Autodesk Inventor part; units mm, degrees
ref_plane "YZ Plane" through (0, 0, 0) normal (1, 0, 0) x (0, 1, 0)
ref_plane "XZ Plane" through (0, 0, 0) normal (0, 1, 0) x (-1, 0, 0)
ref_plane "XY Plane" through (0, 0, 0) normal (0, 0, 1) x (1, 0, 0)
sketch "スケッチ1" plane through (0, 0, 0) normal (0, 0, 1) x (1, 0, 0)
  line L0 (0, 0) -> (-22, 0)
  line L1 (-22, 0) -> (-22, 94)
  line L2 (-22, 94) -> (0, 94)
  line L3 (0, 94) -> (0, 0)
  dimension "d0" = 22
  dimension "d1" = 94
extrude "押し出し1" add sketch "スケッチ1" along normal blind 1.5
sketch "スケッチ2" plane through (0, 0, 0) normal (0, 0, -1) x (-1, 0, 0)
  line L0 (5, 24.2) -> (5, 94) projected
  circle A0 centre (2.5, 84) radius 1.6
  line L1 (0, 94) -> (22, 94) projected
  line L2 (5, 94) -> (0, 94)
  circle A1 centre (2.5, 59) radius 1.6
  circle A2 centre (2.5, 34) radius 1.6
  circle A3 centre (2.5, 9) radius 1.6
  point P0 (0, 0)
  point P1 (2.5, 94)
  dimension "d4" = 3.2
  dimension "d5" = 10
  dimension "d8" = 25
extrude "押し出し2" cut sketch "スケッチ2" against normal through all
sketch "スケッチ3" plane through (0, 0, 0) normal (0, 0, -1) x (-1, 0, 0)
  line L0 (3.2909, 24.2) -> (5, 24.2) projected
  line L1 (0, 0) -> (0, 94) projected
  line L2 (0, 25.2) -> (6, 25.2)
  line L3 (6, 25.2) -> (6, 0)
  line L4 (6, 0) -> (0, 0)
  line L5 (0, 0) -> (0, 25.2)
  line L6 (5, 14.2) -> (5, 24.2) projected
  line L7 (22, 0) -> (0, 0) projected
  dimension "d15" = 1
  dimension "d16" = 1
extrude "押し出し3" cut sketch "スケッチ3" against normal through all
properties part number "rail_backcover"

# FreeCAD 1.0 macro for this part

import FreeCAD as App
import Part
import Sketcher

V = App.Vector
Q = App.Units.Quantity

doc = App.newDocument("Part")
body = doc.addObject("PartDesign::Body", "Body")

sketch1 = body.newObject("Sketcher::SketchObject", "Sketch")
sketch1.AttachmentSupport = (doc.getObject("XY_Plane"), [""])
sketch1.MapMode = "FlatFace"
sketch1.addGeometry(Part.LineSegment(V(-22, 0, 0), V(0, 0, 0)), False)
sketch1.addGeometry(Part.LineSegment(V(0, 0, 0), V(0, 94, 0)), False)
sketch1.addGeometry(Part.LineSegment(V(0, 94, 0), V(-22, 94, 0)), False)
sketch1.addGeometry(Part.LineSegment(V(-22, 94, 0), V(-22, 0, 0)), False)
sketch1.addConstraint(Sketcher.Constraint("Coincident", 0, 2, 1, 1))
sketch1.addConstraint(Sketcher.Constraint("Coincident", 1, 2, 2, 1))
sketch1.addConstraint(Sketcher.Constraint("Coincident", 2, 2, 3, 1))
sketch1.addConstraint(Sketcher.Constraint("Coincident", 3, 2, 0, 1))
sketch1.addConstraint(Sketcher.Constraint("Horizontal", 0))
sketch1.addConstraint(Sketcher.Constraint("Vertical", 1))
sketch1.addConstraint(Sketcher.Constraint("Horizontal", 2))
sketch1.addConstraint(Sketcher.Constraint("Vertical", 3))
sketch1.addConstraint(Sketcher.Constraint("Coincident", 0, 2, -1, 1))
sketch1.addConstraint(Sketcher.Constraint("DistanceX", 0, 1, 0, 2, Q("22 mm")))
sketch1.addConstraint(Sketcher.Constraint("DistanceY", 1, 1, 1, 2, Q("94 mm")))
pad1 = body.newObject("PartDesign::Pad", "Pad")
pad1.Profile = sketch1
pad1.Length = 1.5

sketch2 = body.newObject("Sketcher::SketchObject", "Sketch001")
sketch2.AttachmentSupport = (doc.getObject("XY_Plane"), [""])
sketch2.MapMode = "FlatFace"
sketch2.addGeometry(Part.Circle(V(-2.5, 84, 0), V(0, 0, 1), 1.6), False)
sketch2.addGeometry(Part.Circle(V(-2.5, 59, 0), V(0, 0, 1), 1.6), False)
sketch2.addGeometry(Part.Circle(V(-2.5, 34, 0), V(0, 0, 1), 1.6), False)
sketch2.addGeometry(Part.Circle(V(-2.5, 9, 0), V(0, 0, 1), 1.6), False)
sketch2.addConstraint(Sketcher.Constraint("Equal", 0, 1))
sketch2.addConstraint(Sketcher.Constraint("Equal", 1, 2))
sketch2.addConstraint(Sketcher.Constraint("Equal", 2, 3))
sketch2.addConstraint(Sketcher.Constraint("Vertical", 0, 3, 1, 3))
sketch2.addConstraint(Sketcher.Constraint("Vertical", 1, 3, 2, 3))
sketch2.addConstraint(Sketcher.Constraint("Vertical", 2, 3, 3, 3))
sketch2.addConstraint(Sketcher.Constraint("Diameter", 0, Q("3.2 mm")))
sketch2.addConstraint(Sketcher.Constraint("DistanceY", 1, 3, 0, 3, Q("25 mm")))
sketch2.addConstraint(Sketcher.Constraint("DistanceY", 2, 3, 1, 3, Q("25 mm")))
sketch2.addConstraint(Sketcher.Constraint("DistanceY", 3, 3, 2, 3, Q("25 mm")))
sketch2.addConstraint(Sketcher.Constraint("DistanceY", -1, 1, 0, 3, Q("84 mm")))
sketch2.addConstraint(Sketcher.Constraint("DistanceX", 0, 3, -1, 1, Q("2.5 mm")))
pocket1 = body.newObject("PartDesign::Pocket", "Pocket")
pocket1.Profile = sketch2
pocket1.Type = "ThroughAll"
pocket1.Reversed = True

sketch3 = body.newObject("Sketcher::SketchObject", "Sketch002")
sketch3.AttachmentSupport = (doc.getObject("XY_Plane"), [""])
sketch3.MapMode = "FlatFace"
sketch3.addGeometry(Part.LineSegment(V(0, 25, 0), V(0, 0, 0)), False)
sketch3.addGeometry(Part.LineSegment(V(0, 0, 0), V(-6, 0, 0)), False)
sketch3.addGeometry(Part.LineSegment(V(-6, 0, 0), V(-6, 25, 0)), False)
sketch3.addGeometry(Part.LineSegment(V(-6, 25, 0), V(0, 25, 0)), False)
sketch3.addConstraint(Sketcher.Constraint("Coincident", 0, 2, 1, 1))
sketch3.addConstraint(Sketcher.Constraint("Coincident", 1, 2, 2, 1))
sketch3.addConstraint(Sketcher.Constraint("Coincident", 2, 2, 3, 1))
sketch3.addConstraint(Sketcher.Constraint("Coincident", 3, 2, 0, 1))
sketch3.addConstraint(Sketcher.Constraint("Vertical", 0))
sketch3.addConstraint(Sketcher.Constraint("Horizontal", 1))
sketch3.addConstraint(Sketcher.Constraint("Vertical", 2))
sketch3.addConstraint(Sketcher.Constraint("Horizontal", 3))
sketch3.addConstraint(Sketcher.Constraint("Coincident", 0, 2, -1, 1))
sketch3.addConstraint(Sketcher.Constraint("DistanceX", 1, 2, 1, 1, Q("6 mm")))
sketch3.addConstraint(Sketcher.Constraint("DistanceY", 0, 2, 0, 1, Q("25.2 mm")))
pocket2 = body.newObject("PartDesign::Pocket", "Pocket001")
pocket2.Profile = sketch3
pocket2.Type = "ThroughAll"
pocket2.Reversed = True

doc.recompute()
